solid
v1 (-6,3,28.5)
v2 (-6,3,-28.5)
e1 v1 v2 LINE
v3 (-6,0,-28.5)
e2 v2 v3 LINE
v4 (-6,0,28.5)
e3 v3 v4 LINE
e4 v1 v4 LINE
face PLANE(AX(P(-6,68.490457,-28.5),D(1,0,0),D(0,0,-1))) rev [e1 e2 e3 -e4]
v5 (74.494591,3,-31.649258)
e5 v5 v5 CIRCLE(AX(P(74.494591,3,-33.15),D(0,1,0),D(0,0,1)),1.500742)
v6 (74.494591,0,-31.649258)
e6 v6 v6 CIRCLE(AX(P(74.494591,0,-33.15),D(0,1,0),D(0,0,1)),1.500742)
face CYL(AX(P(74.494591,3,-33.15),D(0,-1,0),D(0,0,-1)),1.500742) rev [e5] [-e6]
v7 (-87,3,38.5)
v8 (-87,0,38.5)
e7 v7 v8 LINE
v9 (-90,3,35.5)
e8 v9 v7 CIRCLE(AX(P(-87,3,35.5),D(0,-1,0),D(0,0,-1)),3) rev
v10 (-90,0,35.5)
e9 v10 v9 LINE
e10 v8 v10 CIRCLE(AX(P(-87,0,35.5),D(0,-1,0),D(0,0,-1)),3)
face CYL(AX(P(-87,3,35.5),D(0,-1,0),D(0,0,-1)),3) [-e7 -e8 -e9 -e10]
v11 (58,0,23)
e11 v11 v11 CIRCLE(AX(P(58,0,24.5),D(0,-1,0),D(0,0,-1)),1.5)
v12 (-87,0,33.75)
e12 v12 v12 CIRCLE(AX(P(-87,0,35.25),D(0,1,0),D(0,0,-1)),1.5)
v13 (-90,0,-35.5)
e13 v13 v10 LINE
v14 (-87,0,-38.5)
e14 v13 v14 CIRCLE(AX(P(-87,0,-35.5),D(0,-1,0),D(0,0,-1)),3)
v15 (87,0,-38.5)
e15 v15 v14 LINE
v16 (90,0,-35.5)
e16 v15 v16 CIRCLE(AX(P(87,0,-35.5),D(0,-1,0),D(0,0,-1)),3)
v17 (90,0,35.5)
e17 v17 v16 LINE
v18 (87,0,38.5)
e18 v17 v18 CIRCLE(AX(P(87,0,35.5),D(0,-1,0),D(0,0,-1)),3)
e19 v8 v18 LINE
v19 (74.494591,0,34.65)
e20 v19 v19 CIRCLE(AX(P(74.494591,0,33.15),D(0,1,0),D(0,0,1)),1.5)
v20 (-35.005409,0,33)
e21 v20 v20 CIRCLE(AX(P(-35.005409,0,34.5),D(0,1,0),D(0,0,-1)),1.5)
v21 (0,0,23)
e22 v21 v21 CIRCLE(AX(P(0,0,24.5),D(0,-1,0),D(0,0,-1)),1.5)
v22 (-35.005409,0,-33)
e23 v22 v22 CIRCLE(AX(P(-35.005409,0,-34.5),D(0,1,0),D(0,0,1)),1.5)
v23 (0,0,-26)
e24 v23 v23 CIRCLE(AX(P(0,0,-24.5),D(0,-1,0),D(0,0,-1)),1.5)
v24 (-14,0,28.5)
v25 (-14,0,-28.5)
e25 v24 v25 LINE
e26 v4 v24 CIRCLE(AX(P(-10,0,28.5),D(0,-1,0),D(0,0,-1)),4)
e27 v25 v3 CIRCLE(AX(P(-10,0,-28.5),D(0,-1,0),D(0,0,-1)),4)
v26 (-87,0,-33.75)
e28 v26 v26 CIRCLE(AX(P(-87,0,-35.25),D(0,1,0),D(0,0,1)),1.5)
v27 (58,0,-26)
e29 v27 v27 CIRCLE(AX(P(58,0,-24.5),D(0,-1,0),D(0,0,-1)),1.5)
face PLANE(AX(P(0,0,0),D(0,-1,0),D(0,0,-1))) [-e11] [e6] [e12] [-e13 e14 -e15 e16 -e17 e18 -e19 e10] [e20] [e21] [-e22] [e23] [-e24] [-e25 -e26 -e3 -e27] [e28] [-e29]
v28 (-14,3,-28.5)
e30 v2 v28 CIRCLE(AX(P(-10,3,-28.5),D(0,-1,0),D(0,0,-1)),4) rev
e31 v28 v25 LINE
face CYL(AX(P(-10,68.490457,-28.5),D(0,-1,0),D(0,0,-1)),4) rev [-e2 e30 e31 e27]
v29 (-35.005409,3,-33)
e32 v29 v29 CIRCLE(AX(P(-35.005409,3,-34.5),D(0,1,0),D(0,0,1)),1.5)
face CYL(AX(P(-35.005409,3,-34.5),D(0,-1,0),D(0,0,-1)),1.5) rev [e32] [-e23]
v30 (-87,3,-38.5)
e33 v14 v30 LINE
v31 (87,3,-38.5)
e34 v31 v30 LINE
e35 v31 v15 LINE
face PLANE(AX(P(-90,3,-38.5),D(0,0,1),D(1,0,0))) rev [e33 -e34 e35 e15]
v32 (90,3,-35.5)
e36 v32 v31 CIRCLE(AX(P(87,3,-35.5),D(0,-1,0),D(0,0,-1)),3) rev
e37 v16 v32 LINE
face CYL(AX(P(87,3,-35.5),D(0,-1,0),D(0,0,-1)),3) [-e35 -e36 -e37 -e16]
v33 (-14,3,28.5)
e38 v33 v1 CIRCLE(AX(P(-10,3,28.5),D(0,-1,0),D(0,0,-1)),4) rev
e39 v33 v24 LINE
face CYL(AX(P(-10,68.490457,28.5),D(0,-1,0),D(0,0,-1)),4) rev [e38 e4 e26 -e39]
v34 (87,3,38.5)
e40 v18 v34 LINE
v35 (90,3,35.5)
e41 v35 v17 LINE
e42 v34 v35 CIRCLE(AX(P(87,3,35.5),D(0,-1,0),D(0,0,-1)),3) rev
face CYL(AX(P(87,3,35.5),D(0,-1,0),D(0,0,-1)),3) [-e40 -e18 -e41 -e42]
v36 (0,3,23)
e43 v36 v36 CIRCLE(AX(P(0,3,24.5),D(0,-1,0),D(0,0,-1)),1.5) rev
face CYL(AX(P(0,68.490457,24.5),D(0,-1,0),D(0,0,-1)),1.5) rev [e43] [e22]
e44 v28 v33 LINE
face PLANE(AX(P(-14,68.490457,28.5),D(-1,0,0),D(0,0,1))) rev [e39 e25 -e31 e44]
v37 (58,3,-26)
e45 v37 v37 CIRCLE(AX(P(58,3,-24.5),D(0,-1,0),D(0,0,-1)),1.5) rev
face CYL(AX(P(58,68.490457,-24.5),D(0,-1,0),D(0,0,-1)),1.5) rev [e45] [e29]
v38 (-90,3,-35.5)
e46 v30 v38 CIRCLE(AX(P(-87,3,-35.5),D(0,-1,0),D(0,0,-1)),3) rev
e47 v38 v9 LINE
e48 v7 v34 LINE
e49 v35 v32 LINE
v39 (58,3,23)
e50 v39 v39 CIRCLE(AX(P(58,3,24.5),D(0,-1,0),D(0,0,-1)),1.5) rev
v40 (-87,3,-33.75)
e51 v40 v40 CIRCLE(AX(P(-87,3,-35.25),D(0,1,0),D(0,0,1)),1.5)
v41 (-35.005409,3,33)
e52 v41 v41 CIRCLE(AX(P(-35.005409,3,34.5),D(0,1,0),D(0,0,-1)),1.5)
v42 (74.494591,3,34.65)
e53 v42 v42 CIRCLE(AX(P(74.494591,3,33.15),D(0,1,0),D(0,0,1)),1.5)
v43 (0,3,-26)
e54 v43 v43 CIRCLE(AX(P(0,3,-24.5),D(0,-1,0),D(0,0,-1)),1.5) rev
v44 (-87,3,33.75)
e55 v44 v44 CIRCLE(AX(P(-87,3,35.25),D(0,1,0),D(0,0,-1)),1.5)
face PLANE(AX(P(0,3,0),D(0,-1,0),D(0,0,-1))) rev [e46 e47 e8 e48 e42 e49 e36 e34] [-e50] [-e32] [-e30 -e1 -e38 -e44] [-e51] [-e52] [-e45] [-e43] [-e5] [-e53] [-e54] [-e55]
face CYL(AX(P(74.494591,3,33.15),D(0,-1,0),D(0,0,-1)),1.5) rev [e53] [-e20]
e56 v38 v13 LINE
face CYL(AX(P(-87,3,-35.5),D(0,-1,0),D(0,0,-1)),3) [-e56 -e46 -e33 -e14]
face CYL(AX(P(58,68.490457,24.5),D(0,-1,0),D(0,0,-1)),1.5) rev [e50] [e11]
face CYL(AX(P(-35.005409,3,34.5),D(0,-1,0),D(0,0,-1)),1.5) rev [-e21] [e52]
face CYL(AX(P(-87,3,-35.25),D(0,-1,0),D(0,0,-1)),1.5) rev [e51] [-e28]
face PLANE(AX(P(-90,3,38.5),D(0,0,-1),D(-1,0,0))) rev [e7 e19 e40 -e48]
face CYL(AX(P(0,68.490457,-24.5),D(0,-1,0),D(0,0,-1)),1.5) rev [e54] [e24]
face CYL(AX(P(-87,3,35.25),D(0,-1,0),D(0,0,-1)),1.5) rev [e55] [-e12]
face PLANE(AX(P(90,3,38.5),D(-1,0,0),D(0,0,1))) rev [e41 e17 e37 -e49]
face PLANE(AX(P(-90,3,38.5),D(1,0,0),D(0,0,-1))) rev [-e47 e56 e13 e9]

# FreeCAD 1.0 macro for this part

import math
import FreeCAD as App
import Part
import Sketcher

V = App.Vector
Q = App.Units.Quantity


def edges_at(feature, points):
    """Names of the edges that pass closest to the given points."""
    edges = feature.Shape.Edges
    near = lambda p: min(range(len(edges)), key=lambda i: edges[i].distToShape(Part.Vertex(*p))[0])
    return sorted({f"Edge{near(p) + 1}" for p in points})

doc = App.newDocument("Part")
body = doc.addObject("PartDesign::Body", "Body")

sketch1 = body.newObject("Sketcher::SketchObject", "Sketch")
sketch1.AttachmentSupport = (doc.getObject("XZ_Plane"), [""])
sketch1.MapMode = "FlatFace"
sketch1.addGeometry(Part.LineSegment(V(-90, -38.5, 0), V(-90, 38.5, 0)), False)
sketch1.addGeometry(Part.LineSegment(V(-90, 38.5, 0), V(90, 38.5, 0)), False)
sketch1.addGeometry(Part.LineSegment(V(90, 38.5, 0), V(90, -38.5, 0)), False)
sketch1.addGeometry(Part.LineSegment(V(90, -38.5, 0), V(-90, -38.5, 0)), False)
sketch1.addGeometry(Part.Circle(V(-87, 35.2, 0), V(0, 0, 1), 1.5), False)
sketch1.addGeometry(Part.Circle(V(-35, 34.5, 0), V(0, 0, 1), 1.5), False)
sketch1.addGeometry(Part.Circle(V(74.5, 33.1, 0), V(0, 0, 1), 1.5), False)
sketch1.addGeometry(Part.Circle(V(-87, -35.2, 0), V(0, 0, 1), 1.5), False)
sketch1.addGeometry(Part.Circle(V(-35, -34.5, 0), V(0, 0, 1), 1.5), False)
sketch1.addGeometry(Part.Circle(V(74.5, -33.1, 0), V(0, 0, 1), 1.5), False)
sketch1.addConstraint(Sketcher.Constraint("Coincident", 0, 2, 1, 1))
sketch1.addConstraint(Sketcher.Constraint("Coincident", 1, 2, 2, 1))
sketch1.addConstraint(Sketcher.Constraint("Coincident", 2, 2, 3, 1))
sketch1.addConstraint(Sketcher.Constraint("Coincident", 3, 2, 0, 1))
sketch1.addConstraint(Sketcher.Constraint("Vertical", 0))
sketch1.addConstraint(Sketcher.Constraint("Horizontal", 1))
sketch1.addConstraint(Sketcher.Constraint("Vertical", 2))
sketch1.addConstraint(Sketcher.Constraint("Horizontal", 3))
sketch1.addConstraint(Sketcher.Constraint("Equal", 4, 5))
sketch1.addConstraint(Sketcher.Constraint("Equal", 5, 6))
sketch1.addConstraint(Sketcher.Constraint("Equal", 6, 7))
sketch1.addConstraint(Sketcher.Constraint("Equal", 7, 8))
sketch1.addConstraint(Sketcher.Constraint("Symmetric", 0, 2, 2, 2, -1, 1))
sketch1.addConstraint(Sketcher.Constraint("Symmetric", 4, 3, 7, 3, -1))
sketch1.addConstraint(Sketcher.Constraint("Symmetric", 5, 3, 8, 3, -1))
sketch1.addConstraint(Sketcher.Constraint("Symmetric", 6, 3, 9, 3, -1))
sketch1.addConstraint(Sketcher.Constraint("Diameter", 4, Q("3 mm")))
sketch1.addConstraint(Sketcher.Constraint("DistanceX", 1, 1, 1, 2, Q("180 mm")))
sketch1.addConstraint(Sketcher.Constraint("DistanceY", 0, 1, 0, 2, Q("77 mm")))
sketch1.addConstraint(Sketcher.Constraint("DistanceX", 4, 3, -1, 1, Q("87 mm")))
sketch1.addConstraint(Sketcher.Constraint("DistanceY", 8, 3, 5, 3, Q("69 mm")))
sketch1.addConstraint(Sketcher.Constraint("DistanceX", 5, 3, 6, 3, Q("109.5 mm")))
sketch1.addConstraint(Sketcher.Constraint("DistanceY", 6, 3, 4, 3, Q("2.1 mm")))
sketch1.addConstraint(Sketcher.Constraint("DistanceY", 7, 3, 4, 3, Q("70.5 mm")))
sketch1.addConstraint(Sketcher.Constraint("Diameter", 9, Q("3.001485 mm")))
sketch1.addConstraint(Sketcher.Constraint("DistanceX", 5, 3, -1, 1, Q("35.005409 mm")))
pad1 = body.newObject("PartDesign::Pad", "Pad")
pad1.Profile = sketch1
pad1.Length = 3
pad1.Reversed = True
doc.recompute()

fillet = body.newObject("PartDesign::Fillet", "Fillet")
fillet.Base = (pad1, edges_at(pad1, [
    (90, 1.5, 38.5),
    (-90, 1.5, 38.5),
    (-90, 1.5, -38.5),
    (90, 1.5, -38.5),
]))
fillet.Radius = 3

sketch2 = body.newObject("Sketcher::SketchObject", "Sketch001")
sketch2.AttachmentSupport = (doc.getObject("XZ_Plane"), [""])
sketch2.MapMode = "FlatFace"
sketch2.addGeometry(Part.Circle(V(58, 24.5, 0), V(0, 0, 1), 1.5), False)
sketch2.addGeometry(Part.Circle(V(58, -24.5, 0), V(0, 0, 1), 1.5), False)
sketch2.addGeometry(Part.Circle(V(0, -24.5, 0), V(0, 0, 1), 1.5), False)
sketch2.addGeometry(Part.Circle(V(0, 24.5, 0), V(0, 0, 1), 1.5), False)
sketch2.addGeometry(Part.LineSegment(V(-14, 28.5, 0), V(-14, -28.5, 0)), False)
sketch2.addGeometry(Part.ArcOfCircle(Part.Circle(V(-10, -28.5, 0), V(0, 0, 1), 4), math.radians(180), math.radians(360)), False)
sketch2.addGeometry(Part.LineSegment(V(-6, -28.5, 0), V(-6, 28.5, 0)), False)
sketch2.addGeometry(Part.ArcOfCircle(Part.Circle(V(-10, 28.5, 0), V(0, 0, 1), 4), math.radians(0), math.radians(180)), False)
sketch2.addConstraint(Sketcher.Constraint("Tangent", 4, 2, 5, 1))
sketch2.addConstraint(Sketcher.Constraint("Tangent", 5, 2, 6, 1))
sketch2.addConstraint(Sketcher.Constraint("Tangent", 6, 2, 7, 1))
sketch2.addConstraint(Sketcher.Constraint("Tangent", 7, 2, 4, 1))
sketch2.addConstraint(Sketcher.Constraint("Vertical", 4))
sketch2.addConstraint(Sketcher.Constraint("Vertical", 6))
sketch2.addConstraint(Sketcher.Constraint("Equal", 0, 1))
sketch2.addConstraint(Sketcher.Constraint("Equal", 1, 2))
sketch2.addConstraint(Sketcher.Constraint("Equal", 2, 3))
sketch2.addConstraint(Sketcher.Constraint("Symmetric", 2, 3, 3, 3, -1, 1))
sketch2.addConstraint(Sketcher.Constraint("Symmetric", 0, 3, 1, 3, -1))
sketch2.addConstraint(Sketcher.Constraint("PointOnObject", 2, 3, -2))
sketch2.addConstraint(Sketcher.Constraint("Horizontal", 1, 3, 2, 3))
sketch2.addConstraint(Sketcher.Constraint("Diameter", 0, Q("3 mm")))
sketch2.addConstraint(Sketcher.Constraint("Radius", 5, Q("4 mm")))
sketch2.addConstraint(Sketcher.Constraint("DistanceY", 4, 2, 4, 1, Q("57 mm")))
sketch2.addConstraint(Sketcher.Constraint("DistanceX", -1, 1, 0, 3, Q("58 mm")))
sketch2.addConstraint(Sketcher.Constraint("DistanceX", 5, 3, -1, 1, Q("10 mm")))
sketch2.addConstraint(Sketcher.Constraint("DistanceY", 1, 3, 0, 3, Q("49 mm")))
sketch2.addConstraint(Sketcher.Constraint("DistanceY", 5, 3, 2, 3, Q("4 mm")))
pocket1 = body.newObject("PartDesign::Pocket", "Pocket")
pocket1.Profile = sketch2
pocket1.Length = 3

doc.recompute()
